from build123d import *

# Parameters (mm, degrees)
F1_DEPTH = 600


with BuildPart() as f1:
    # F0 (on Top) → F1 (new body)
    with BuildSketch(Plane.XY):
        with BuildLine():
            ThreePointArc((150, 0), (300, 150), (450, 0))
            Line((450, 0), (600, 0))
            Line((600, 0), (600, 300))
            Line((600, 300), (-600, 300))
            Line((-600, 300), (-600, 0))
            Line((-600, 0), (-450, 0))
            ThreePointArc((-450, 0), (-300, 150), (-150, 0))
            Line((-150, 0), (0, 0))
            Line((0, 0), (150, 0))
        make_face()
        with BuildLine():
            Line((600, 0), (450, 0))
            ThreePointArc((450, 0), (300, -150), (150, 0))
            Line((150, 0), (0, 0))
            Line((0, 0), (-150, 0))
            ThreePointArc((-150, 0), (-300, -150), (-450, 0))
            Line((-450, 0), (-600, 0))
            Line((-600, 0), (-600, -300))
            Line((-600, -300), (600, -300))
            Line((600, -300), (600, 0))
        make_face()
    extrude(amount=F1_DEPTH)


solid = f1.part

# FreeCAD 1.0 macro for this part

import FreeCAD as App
import Part
import Sketcher

V = App.Vector
Q = App.Units.Quantity

doc = App.newDocument("Part")
body = doc.addObject("PartDesign::Body", "Body")

sketch1 = doc.addObject("Sketcher::SketchObject", "Sketch")
body.addObject(sketch1)
sketch1.AttachmentSupport = (doc.XY_Plane, [""])
sketch1.MapMode = "FlatFace"
sketch1.addGeometry([
    Part.LineSegment(V(600, 300, 0), V(-600, 300, 0)),
    Part.LineSegment(V(-600, 300, 0), V(-600, -300, 0)),
    Part.LineSegment(V(-600, -300, 0), V(600, -300, 0)),
    Part.LineSegment(V(600, -300, 0), V(600, 300, 0)),
    Part.Circle(V(300, 0, 0), V(0, 0, 1), 150),
    Part.Circle(V(-300, 0, 0), V(0, 0, 1), 150),
], False)
sketch1.addConstraint([
    Sketcher.Constraint("Coincident", 0, 2, 1, 1),
    Sketcher.Constraint("Coincident", 1, 2, 2, 1),
    Sketcher.Constraint("Coincident", 2, 2, 3, 1),
    Sketcher.Constraint("Coincident", 3, 2, 0, 1),
    Sketcher.Constraint("Horizontal", 0),
    Sketcher.Constraint("Vertical", 1),
    Sketcher.Constraint("Horizontal", 2),
    Sketcher.Constraint("Vertical", 3),
    Sketcher.Constraint("Equal", 4, 5),
    Sketcher.Constraint("Symmetric", 4, 3, 5, 3, -1, 1),
    Sketcher.Constraint("Symmetric", 0, 2, 2, 2, -1, 1),
    Sketcher.Constraint("PointOnObject", 4, 3, -1),
    Sketcher.Constraint("Diameter", 4, Q("300 mm")),
    Sketcher.Constraint("DistanceX", 0, 2, 0, 1, Q("1200 mm")),
    Sketcher.Constraint("DistanceY", 1, 2, 1, 1, Q("600 mm")),
    Sketcher.Constraint("DistanceX", -1, 1, 4, 3, Q("300 mm")),
])
pad1 = doc.addObject("PartDesign::Pad", "Pad")
body.addObject(pad1)
pad1.Profile = sketch1
pad1.Length = 600

doc.recompute()
